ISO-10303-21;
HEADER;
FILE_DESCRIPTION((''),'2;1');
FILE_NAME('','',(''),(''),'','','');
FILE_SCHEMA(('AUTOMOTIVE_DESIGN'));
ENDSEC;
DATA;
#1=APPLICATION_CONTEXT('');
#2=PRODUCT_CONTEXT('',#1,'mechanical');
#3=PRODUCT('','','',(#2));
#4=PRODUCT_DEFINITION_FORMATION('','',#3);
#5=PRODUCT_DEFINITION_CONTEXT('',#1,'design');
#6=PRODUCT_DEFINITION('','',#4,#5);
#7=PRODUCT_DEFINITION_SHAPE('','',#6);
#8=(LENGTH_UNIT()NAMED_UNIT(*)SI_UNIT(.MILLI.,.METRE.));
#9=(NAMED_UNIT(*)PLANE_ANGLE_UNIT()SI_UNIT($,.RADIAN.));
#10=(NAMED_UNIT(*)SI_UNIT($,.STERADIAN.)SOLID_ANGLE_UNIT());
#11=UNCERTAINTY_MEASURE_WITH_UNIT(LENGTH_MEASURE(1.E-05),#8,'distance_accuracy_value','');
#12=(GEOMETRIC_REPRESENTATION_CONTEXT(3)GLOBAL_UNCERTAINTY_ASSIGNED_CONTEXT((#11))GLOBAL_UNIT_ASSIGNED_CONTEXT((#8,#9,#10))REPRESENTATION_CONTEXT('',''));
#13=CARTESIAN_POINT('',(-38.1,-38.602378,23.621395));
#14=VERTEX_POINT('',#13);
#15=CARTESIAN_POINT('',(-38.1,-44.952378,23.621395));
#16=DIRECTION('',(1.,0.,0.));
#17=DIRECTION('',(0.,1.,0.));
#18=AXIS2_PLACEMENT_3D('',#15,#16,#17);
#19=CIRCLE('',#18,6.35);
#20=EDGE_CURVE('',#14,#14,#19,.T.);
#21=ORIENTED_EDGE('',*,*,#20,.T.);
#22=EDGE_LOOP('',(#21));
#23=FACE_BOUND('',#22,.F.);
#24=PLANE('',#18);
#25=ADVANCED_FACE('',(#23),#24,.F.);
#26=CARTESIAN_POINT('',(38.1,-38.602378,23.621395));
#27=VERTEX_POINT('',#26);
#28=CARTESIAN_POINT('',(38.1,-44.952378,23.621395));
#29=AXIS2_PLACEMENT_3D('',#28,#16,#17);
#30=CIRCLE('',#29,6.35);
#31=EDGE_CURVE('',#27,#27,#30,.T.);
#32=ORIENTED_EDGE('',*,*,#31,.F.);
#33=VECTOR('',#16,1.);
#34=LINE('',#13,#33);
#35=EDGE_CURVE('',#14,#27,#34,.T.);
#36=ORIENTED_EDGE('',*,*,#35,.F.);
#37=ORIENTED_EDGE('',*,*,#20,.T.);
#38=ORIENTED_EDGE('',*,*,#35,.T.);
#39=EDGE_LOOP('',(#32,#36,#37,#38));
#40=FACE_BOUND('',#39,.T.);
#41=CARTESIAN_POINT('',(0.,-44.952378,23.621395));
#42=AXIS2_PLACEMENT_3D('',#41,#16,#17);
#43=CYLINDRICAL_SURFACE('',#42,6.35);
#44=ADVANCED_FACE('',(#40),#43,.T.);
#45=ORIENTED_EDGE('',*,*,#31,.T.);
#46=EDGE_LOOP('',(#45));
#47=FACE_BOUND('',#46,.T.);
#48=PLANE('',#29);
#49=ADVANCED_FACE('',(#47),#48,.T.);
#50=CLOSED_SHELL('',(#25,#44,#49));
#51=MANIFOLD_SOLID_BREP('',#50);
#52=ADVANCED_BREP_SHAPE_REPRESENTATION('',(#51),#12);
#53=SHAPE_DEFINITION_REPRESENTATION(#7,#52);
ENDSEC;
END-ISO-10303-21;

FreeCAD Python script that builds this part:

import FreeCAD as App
import Part
import Sketcher
from FreeCAD import Vector
Q = App.Units.Quantity

doc = App.newDocument("Part")
params = doc.addObject("Spreadsheet::Sheet", "Params")
for row, (alias, value) in enumerate([
    ("sketch1_diameter", "0.5 in"),
    ("pad1_length", "1.5 in"),
    ("pad1_length2", "1.5 in"),
], start=1):
    params.set(f"A{row}", alias)
    params.set(f"B{row}", "=" + value)
    params.setAlias(f"B{row}", alias)

body = doc.addObject("PartDesign::Body", "Body")

sketch1 = body.newObject("Sketcher::SketchObject", "Sketch")
sketch1.AttachmentSupport = (doc.getObject("YZ_Plane"), [""])
sketch1.MapMode = "FlatFace"
sketch1.addGeometry(Part.Circle(Vector(-44.952378, 23.621395, 0), Vector(0, 0, 1), 6.35), False)
sketch1.addConstraint([
    Sketcher.Constraint("Diameter", 0, Q("0.5 in")),
    Sketcher.Constraint("DistanceX", 0, 3, -1, 1, Q("44.952378 mm")),
    Sketcher.Constraint("DistanceY", -1, 1, 0, 3, Q("23.621395 mm")),
])
sketch1.setExpression("Constraints[0]", "Params.sketch1_diameter")
pad1 = body.newObject("PartDesign::Pad", "Pad")
pad1.Profile = sketch1
pad1.Type = "TwoLengths"
pad1.setExpression("Length", "Params.pad1_length")
pad1.setExpression("Length2", "Params.pad1_length2")

doc.recompute()
